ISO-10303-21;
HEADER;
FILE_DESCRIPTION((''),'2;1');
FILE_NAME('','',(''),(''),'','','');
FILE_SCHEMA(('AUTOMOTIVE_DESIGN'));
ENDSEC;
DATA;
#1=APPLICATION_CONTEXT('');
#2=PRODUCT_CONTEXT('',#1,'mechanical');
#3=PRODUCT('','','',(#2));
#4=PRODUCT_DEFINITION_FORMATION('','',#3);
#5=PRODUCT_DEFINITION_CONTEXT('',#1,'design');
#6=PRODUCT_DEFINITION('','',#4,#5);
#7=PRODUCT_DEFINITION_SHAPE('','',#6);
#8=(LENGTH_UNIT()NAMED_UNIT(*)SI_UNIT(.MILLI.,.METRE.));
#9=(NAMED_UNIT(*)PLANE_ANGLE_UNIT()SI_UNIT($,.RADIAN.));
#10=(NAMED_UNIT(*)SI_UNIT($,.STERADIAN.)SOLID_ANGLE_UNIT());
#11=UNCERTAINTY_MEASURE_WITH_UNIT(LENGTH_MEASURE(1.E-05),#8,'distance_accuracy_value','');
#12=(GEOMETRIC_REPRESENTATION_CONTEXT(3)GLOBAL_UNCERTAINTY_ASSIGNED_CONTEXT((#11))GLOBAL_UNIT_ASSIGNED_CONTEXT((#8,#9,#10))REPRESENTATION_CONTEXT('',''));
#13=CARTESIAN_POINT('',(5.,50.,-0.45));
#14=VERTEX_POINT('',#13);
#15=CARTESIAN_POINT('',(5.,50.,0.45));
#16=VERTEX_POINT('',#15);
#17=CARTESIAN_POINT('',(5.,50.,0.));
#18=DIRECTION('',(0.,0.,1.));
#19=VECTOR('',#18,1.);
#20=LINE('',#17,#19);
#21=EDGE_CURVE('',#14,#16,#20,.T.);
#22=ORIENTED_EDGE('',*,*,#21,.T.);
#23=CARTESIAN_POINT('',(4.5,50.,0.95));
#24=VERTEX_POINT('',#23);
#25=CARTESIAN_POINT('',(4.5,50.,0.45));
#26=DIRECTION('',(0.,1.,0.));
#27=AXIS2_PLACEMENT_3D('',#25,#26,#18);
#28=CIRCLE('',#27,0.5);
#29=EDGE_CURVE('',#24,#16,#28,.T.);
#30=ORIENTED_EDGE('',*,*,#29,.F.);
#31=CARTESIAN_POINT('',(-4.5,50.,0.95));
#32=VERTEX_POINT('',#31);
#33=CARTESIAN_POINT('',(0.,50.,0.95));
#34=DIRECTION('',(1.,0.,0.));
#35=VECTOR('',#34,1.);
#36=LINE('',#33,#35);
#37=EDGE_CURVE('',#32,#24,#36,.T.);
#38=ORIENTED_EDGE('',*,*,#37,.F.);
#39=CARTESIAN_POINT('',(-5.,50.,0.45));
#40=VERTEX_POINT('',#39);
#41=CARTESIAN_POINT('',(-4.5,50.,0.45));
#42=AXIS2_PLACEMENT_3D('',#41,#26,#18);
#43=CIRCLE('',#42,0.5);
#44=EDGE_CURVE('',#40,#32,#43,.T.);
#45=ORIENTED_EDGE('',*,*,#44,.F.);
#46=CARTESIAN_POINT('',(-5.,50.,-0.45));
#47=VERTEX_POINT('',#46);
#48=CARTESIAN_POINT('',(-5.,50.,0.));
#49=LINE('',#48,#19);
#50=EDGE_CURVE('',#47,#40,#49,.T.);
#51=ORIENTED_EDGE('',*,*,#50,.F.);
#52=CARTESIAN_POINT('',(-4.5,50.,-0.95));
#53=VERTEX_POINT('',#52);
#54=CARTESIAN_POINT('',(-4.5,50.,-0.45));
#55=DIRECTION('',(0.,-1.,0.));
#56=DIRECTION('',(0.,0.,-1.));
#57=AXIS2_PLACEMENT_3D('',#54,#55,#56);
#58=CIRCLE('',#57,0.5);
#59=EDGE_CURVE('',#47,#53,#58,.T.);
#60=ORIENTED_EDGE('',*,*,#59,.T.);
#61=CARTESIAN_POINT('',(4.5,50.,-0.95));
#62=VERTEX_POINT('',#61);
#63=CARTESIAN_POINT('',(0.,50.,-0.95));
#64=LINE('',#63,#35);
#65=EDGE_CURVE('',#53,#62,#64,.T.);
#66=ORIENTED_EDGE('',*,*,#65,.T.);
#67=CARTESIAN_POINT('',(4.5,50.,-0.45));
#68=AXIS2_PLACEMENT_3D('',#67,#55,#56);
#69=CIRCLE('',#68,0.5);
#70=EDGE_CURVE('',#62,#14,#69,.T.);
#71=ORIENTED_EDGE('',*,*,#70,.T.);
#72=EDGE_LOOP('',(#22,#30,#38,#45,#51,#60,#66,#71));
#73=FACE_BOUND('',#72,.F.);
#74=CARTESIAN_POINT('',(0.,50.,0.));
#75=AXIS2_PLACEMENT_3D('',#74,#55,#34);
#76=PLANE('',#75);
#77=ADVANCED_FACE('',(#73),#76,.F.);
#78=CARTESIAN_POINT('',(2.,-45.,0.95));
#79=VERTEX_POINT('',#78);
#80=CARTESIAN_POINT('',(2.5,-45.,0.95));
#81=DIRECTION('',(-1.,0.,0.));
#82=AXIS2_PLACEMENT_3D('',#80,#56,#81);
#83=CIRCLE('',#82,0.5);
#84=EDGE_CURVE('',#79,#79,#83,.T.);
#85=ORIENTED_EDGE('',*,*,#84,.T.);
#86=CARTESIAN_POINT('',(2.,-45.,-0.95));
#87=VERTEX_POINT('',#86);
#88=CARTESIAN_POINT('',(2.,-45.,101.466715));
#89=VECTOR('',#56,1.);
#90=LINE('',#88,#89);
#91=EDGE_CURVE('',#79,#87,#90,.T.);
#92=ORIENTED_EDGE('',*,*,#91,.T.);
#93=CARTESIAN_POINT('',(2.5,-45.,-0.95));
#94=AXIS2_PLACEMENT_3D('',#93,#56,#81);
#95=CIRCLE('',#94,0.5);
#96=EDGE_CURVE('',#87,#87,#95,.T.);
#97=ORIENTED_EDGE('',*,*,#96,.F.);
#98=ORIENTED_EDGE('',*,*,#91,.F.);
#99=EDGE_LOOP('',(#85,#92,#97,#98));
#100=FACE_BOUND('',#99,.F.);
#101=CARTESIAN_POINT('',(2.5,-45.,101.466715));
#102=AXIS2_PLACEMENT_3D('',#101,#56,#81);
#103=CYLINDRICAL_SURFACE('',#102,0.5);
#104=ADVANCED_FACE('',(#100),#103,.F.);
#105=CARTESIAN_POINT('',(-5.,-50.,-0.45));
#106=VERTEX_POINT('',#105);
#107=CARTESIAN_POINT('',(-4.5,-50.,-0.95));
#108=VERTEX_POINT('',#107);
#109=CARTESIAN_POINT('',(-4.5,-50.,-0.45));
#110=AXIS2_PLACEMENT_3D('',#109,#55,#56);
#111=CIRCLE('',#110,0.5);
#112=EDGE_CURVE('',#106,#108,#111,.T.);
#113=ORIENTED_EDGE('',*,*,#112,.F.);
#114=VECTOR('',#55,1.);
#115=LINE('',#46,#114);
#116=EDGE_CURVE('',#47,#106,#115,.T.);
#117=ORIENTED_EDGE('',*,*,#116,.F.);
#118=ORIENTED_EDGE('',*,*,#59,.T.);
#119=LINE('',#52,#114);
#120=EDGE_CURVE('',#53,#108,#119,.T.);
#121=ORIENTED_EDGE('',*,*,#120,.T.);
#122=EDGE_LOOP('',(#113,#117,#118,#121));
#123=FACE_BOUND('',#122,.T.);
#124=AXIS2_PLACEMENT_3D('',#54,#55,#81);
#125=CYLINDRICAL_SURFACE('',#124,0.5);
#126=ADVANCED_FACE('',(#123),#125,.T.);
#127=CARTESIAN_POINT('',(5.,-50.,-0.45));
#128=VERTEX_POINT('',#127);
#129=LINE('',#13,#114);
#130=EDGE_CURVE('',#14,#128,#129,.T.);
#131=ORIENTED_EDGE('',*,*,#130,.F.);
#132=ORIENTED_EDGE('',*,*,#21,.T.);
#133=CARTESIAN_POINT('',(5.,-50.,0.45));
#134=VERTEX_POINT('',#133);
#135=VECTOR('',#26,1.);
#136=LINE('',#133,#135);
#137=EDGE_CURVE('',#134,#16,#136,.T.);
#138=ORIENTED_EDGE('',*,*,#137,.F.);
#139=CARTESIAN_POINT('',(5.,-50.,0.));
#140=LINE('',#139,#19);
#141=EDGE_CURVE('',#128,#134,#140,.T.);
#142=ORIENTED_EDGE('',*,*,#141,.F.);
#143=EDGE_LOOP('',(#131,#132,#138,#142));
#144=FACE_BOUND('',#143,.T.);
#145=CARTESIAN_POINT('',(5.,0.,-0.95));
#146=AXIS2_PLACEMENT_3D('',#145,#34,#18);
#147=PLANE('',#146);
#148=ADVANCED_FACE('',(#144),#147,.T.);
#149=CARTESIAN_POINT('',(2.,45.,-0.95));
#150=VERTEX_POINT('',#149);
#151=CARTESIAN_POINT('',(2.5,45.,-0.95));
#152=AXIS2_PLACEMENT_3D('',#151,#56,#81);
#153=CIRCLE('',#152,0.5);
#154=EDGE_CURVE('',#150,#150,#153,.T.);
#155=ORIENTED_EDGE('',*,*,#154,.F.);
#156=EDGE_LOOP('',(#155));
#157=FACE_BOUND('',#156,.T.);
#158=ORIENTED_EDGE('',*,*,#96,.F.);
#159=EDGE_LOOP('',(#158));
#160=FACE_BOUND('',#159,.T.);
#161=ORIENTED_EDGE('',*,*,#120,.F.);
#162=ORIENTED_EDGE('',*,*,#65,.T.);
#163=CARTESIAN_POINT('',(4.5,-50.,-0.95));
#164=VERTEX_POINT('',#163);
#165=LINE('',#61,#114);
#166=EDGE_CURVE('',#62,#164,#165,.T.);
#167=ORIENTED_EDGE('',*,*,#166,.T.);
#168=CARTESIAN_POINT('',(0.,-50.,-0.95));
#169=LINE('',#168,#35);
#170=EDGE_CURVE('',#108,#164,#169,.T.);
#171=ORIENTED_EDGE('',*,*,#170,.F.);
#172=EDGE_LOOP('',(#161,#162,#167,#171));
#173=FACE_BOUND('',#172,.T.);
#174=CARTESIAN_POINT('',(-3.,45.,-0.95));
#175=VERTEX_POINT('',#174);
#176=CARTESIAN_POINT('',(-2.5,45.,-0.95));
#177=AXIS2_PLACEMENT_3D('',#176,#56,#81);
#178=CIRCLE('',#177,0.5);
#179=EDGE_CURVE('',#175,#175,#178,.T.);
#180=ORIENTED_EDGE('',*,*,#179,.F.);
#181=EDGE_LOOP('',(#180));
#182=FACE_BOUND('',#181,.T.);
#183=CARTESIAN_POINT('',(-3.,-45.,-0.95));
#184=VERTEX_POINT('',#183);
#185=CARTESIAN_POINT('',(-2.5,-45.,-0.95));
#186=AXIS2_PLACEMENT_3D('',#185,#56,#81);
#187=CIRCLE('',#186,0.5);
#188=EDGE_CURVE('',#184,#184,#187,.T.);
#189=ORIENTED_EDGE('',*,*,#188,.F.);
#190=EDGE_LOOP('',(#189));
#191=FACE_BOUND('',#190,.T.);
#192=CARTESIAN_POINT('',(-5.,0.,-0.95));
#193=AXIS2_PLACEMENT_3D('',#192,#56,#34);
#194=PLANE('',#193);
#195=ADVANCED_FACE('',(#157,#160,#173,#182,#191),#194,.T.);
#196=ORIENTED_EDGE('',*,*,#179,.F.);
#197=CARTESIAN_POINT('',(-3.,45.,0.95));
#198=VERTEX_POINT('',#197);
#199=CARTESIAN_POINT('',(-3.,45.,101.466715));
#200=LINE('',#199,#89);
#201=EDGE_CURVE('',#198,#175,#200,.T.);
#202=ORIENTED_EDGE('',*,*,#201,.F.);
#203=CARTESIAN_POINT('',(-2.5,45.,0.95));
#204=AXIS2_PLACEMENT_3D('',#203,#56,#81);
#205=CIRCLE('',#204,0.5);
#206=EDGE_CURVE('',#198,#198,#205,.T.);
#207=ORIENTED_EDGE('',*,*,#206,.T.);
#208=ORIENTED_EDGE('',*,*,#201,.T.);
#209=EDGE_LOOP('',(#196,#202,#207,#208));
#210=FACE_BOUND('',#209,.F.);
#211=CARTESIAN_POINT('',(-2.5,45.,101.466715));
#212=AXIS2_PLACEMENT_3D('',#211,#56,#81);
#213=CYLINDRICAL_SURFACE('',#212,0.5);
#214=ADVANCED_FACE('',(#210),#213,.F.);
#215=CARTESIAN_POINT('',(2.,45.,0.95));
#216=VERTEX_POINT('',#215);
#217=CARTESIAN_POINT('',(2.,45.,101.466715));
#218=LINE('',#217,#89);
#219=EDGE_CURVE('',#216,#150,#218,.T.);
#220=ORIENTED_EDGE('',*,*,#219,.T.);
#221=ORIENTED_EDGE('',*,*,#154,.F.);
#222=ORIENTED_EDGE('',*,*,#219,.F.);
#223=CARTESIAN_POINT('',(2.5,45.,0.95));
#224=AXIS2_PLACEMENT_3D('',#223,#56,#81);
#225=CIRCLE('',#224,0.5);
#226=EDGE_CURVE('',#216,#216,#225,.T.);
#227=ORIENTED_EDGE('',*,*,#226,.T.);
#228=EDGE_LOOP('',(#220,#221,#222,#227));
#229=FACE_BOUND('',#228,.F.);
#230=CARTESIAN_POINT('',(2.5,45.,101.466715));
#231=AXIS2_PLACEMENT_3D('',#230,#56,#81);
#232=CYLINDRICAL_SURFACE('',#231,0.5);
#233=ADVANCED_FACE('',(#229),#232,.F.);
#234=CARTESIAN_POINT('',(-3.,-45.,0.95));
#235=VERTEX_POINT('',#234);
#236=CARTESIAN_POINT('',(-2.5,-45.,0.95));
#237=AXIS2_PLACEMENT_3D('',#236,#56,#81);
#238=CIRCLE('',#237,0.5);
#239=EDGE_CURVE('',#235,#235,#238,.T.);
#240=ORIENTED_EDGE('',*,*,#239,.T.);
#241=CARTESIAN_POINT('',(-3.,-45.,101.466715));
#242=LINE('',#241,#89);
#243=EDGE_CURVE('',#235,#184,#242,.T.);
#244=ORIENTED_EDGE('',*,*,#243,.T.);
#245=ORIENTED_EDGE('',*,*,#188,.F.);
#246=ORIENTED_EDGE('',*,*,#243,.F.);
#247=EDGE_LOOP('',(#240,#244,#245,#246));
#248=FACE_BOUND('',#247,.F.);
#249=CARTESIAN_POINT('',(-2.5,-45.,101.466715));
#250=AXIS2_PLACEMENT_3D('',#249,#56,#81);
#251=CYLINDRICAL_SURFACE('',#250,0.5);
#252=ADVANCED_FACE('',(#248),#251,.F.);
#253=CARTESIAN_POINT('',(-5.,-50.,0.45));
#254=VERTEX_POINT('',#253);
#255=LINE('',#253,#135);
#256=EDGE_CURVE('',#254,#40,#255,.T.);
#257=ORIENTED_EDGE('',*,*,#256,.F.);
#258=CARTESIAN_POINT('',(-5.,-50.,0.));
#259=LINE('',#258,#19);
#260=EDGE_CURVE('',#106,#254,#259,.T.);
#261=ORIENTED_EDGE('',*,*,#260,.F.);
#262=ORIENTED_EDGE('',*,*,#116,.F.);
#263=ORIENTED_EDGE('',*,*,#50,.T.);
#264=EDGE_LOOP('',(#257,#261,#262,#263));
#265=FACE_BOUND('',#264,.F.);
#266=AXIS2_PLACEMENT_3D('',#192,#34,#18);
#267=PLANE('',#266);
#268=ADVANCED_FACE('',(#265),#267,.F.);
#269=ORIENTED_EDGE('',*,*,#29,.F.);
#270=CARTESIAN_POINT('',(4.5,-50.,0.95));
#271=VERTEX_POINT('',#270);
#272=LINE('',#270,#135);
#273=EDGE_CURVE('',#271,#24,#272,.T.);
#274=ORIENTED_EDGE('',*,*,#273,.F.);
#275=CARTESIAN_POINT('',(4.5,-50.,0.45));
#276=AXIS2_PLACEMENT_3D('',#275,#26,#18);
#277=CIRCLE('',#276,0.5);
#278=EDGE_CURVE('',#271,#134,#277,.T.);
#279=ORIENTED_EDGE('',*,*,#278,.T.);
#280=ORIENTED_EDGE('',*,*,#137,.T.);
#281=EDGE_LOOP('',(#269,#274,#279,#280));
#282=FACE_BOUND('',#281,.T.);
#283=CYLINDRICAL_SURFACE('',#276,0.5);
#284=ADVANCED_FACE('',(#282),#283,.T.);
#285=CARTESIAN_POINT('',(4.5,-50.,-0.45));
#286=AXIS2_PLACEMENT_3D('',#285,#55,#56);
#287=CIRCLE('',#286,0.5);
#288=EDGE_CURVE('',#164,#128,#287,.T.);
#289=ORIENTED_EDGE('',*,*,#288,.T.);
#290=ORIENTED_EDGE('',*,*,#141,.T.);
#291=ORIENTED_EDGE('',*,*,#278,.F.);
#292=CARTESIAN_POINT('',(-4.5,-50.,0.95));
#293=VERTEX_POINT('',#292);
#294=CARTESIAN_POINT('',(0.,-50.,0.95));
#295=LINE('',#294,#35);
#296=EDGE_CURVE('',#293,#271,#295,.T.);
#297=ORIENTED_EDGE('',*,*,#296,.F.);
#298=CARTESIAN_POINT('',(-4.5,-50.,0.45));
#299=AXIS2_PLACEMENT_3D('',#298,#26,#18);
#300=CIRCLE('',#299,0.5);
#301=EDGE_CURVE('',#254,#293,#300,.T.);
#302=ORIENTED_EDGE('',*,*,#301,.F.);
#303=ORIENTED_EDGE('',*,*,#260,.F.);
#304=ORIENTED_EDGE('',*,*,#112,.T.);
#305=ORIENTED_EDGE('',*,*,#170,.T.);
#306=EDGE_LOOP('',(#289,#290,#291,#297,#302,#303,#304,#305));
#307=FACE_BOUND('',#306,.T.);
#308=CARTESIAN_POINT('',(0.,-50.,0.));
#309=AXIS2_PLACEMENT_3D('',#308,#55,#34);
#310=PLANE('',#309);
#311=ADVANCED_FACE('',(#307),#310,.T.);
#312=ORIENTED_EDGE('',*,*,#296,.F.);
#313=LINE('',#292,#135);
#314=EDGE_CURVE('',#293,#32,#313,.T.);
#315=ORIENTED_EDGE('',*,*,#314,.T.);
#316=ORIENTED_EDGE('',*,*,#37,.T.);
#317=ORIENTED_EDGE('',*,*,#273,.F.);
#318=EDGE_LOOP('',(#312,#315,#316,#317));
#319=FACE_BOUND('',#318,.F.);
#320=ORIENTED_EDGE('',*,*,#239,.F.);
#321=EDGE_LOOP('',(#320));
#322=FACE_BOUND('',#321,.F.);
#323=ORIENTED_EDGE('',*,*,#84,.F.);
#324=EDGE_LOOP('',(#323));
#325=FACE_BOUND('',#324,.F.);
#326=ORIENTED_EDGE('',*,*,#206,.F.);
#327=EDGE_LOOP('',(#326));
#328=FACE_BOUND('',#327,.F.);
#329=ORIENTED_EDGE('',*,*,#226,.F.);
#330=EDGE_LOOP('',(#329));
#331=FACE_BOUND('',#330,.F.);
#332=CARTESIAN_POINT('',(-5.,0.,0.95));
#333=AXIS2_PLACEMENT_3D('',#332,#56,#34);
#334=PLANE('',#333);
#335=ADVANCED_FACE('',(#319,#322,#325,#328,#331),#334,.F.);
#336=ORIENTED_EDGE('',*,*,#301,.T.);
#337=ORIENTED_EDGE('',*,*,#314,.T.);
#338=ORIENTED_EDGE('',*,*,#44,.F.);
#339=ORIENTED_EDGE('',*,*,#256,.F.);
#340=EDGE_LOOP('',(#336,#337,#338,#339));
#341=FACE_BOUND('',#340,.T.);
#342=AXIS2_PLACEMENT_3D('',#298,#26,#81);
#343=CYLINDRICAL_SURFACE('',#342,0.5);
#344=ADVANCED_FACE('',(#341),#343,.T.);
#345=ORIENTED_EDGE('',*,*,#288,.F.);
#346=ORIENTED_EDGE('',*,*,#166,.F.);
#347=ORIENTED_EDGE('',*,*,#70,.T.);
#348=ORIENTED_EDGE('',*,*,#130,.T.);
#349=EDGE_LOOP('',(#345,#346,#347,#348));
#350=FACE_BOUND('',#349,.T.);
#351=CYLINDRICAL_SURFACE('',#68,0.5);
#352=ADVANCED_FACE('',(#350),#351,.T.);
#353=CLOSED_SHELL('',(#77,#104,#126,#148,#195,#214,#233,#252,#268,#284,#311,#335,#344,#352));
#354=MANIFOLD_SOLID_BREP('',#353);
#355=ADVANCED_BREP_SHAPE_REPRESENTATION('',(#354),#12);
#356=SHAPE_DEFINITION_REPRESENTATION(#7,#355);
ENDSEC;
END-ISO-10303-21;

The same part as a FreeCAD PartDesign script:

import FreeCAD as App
import Part
import Sketcher
Q = App.Units.Quantity


def edges_at(feature, points):
    """Names of the edges that pass closest to the given points."""
    edges = feature.Shape.Edges
    near = lambda p: min(range(len(edges)), key=lambda i: edges[i].distToShape(Part.Vertex(*p))[0])
    return sorted({f"Edge{near(p) + 1}" for p in points})


def add_polygon(sketch, points):
    """Adds a closed chain of lines whose ends are joined by coincident constraints."""
    first, n = sketch.GeometryCount, len(points)
    for a, b in zip(points, points[1:] + points[:1]):
        sketch.addGeometry(Part.LineSegment(App.Vector(*a, 0), App.Vector(*b, 0)), False)
    for i in range(n):
        sketch.addConstraint(Sketcher.Constraint("Coincident", first + i, 2, first + (i + 1) % n, 1))

doc = App.newDocument("Part")
body = doc.addObject("PartDesign::Body", "Body")

sketch1 = doc.addObject("Sketcher::SketchObject", "Sketch")
body.addObject(sketch1)
sketch1.AttachmentSupport = (doc.XZ_Plane, [""])
sketch1.MapMode = "FlatFace"
add_polygon(sketch1, [(-5, 0.95), (-5, -0.95), (5, -0.95), (5, 0.95)])
sketch1.addConstraint([
    Sketcher.Constraint("Vertical", 0),
    Sketcher.Constraint("Horizontal", 1),
    Sketcher.Constraint("Vertical", 2),
    Sketcher.Constraint("Horizontal", 3),
    Sketcher.Constraint("Symmetric", 0, 2, 2, 2, -1, 1),
    Sketcher.Constraint("DistanceX", 1, 1, 1, 2, Q("10 mm")),
    Sketcher.Constraint("DistanceY", 0, 2, 0, 1, Q("1.9 mm")),
])
pad1 = doc.addObject("PartDesign::Pad", "Pad")
body.addObject(pad1)
pad1.Profile = sketch1
pad1.Length = 100
pad1.Midplane = True

sketch2 = doc.addObject("Sketcher::SketchObject", "Sketch001")
body.addObject(sketch2)
sketch2.AttachmentSupport = (doc.XY_Plane, [""])
sketch2.MapMode = "FlatFace"
sketch2.AttachmentOffset = App.Placement(App.Vector(0, 0, 0.95), App.Rotation())
sketch2.addGeometry([
    Part.Circle(App.Vector(-2.5, 45, 0), App.Vector(0, 0, 1), 0.5),
    Part.Circle(App.Vector(2.5, 45, 0), App.Vector(0, 0, 1), 0.5),
    Part.Circle(App.Vector(-2.5, -45, 0), App.Vector(0, 0, 1), 0.5),
    Part.Circle(App.Vector(2.5, -45, 0), App.Vector(0, 0, 1), 0.5),
], False)
sketch2.addConstraint([
    Sketcher.Constraint("Equal", 0, 1),
    Sketcher.Constraint("Equal", 1, 2),
    Sketcher.Constraint("Equal", 2, 3),
    Sketcher.Constraint("Symmetric", 1, 3, 2, 3, -1, 1),
    Sketcher.Constraint("Symmetric", 0, 3, 3, 3, -1, 1),
    Sketcher.Constraint("Symmetric", 0, 3, 1, 3, -2),
    Sketcher.Constraint("Diameter", 0, Q("1 mm")),
    Sketcher.Constraint("DistanceY", -1, 1, 0, 3, Q("45 mm")),
    Sketcher.Constraint("DistanceX", 0, 3, 1, 3, Q("5 mm")),
])
doc.recompute()
hole = doc.addObject("PartDesign::Hole", "Hole")
body.addObject(hole)
hole.Profile = sketch2
hole.ThreadType = "None"
hole.Diameter = 1
hole.DepthType = "ThroughAll"
doc.recompute()

fillet = doc.addObject("PartDesign::Fillet", "Fillet")
body.addObject(fillet)
fillet.Base = (hole, edges_at(hole, [
    (5, 0, 0.95),
    (-5, 0, 0.95),
    (5, 0, -0.95),
    (-5, 0, -0.95),
]))
fillet.Radius = 0.5

doc.recompute()
